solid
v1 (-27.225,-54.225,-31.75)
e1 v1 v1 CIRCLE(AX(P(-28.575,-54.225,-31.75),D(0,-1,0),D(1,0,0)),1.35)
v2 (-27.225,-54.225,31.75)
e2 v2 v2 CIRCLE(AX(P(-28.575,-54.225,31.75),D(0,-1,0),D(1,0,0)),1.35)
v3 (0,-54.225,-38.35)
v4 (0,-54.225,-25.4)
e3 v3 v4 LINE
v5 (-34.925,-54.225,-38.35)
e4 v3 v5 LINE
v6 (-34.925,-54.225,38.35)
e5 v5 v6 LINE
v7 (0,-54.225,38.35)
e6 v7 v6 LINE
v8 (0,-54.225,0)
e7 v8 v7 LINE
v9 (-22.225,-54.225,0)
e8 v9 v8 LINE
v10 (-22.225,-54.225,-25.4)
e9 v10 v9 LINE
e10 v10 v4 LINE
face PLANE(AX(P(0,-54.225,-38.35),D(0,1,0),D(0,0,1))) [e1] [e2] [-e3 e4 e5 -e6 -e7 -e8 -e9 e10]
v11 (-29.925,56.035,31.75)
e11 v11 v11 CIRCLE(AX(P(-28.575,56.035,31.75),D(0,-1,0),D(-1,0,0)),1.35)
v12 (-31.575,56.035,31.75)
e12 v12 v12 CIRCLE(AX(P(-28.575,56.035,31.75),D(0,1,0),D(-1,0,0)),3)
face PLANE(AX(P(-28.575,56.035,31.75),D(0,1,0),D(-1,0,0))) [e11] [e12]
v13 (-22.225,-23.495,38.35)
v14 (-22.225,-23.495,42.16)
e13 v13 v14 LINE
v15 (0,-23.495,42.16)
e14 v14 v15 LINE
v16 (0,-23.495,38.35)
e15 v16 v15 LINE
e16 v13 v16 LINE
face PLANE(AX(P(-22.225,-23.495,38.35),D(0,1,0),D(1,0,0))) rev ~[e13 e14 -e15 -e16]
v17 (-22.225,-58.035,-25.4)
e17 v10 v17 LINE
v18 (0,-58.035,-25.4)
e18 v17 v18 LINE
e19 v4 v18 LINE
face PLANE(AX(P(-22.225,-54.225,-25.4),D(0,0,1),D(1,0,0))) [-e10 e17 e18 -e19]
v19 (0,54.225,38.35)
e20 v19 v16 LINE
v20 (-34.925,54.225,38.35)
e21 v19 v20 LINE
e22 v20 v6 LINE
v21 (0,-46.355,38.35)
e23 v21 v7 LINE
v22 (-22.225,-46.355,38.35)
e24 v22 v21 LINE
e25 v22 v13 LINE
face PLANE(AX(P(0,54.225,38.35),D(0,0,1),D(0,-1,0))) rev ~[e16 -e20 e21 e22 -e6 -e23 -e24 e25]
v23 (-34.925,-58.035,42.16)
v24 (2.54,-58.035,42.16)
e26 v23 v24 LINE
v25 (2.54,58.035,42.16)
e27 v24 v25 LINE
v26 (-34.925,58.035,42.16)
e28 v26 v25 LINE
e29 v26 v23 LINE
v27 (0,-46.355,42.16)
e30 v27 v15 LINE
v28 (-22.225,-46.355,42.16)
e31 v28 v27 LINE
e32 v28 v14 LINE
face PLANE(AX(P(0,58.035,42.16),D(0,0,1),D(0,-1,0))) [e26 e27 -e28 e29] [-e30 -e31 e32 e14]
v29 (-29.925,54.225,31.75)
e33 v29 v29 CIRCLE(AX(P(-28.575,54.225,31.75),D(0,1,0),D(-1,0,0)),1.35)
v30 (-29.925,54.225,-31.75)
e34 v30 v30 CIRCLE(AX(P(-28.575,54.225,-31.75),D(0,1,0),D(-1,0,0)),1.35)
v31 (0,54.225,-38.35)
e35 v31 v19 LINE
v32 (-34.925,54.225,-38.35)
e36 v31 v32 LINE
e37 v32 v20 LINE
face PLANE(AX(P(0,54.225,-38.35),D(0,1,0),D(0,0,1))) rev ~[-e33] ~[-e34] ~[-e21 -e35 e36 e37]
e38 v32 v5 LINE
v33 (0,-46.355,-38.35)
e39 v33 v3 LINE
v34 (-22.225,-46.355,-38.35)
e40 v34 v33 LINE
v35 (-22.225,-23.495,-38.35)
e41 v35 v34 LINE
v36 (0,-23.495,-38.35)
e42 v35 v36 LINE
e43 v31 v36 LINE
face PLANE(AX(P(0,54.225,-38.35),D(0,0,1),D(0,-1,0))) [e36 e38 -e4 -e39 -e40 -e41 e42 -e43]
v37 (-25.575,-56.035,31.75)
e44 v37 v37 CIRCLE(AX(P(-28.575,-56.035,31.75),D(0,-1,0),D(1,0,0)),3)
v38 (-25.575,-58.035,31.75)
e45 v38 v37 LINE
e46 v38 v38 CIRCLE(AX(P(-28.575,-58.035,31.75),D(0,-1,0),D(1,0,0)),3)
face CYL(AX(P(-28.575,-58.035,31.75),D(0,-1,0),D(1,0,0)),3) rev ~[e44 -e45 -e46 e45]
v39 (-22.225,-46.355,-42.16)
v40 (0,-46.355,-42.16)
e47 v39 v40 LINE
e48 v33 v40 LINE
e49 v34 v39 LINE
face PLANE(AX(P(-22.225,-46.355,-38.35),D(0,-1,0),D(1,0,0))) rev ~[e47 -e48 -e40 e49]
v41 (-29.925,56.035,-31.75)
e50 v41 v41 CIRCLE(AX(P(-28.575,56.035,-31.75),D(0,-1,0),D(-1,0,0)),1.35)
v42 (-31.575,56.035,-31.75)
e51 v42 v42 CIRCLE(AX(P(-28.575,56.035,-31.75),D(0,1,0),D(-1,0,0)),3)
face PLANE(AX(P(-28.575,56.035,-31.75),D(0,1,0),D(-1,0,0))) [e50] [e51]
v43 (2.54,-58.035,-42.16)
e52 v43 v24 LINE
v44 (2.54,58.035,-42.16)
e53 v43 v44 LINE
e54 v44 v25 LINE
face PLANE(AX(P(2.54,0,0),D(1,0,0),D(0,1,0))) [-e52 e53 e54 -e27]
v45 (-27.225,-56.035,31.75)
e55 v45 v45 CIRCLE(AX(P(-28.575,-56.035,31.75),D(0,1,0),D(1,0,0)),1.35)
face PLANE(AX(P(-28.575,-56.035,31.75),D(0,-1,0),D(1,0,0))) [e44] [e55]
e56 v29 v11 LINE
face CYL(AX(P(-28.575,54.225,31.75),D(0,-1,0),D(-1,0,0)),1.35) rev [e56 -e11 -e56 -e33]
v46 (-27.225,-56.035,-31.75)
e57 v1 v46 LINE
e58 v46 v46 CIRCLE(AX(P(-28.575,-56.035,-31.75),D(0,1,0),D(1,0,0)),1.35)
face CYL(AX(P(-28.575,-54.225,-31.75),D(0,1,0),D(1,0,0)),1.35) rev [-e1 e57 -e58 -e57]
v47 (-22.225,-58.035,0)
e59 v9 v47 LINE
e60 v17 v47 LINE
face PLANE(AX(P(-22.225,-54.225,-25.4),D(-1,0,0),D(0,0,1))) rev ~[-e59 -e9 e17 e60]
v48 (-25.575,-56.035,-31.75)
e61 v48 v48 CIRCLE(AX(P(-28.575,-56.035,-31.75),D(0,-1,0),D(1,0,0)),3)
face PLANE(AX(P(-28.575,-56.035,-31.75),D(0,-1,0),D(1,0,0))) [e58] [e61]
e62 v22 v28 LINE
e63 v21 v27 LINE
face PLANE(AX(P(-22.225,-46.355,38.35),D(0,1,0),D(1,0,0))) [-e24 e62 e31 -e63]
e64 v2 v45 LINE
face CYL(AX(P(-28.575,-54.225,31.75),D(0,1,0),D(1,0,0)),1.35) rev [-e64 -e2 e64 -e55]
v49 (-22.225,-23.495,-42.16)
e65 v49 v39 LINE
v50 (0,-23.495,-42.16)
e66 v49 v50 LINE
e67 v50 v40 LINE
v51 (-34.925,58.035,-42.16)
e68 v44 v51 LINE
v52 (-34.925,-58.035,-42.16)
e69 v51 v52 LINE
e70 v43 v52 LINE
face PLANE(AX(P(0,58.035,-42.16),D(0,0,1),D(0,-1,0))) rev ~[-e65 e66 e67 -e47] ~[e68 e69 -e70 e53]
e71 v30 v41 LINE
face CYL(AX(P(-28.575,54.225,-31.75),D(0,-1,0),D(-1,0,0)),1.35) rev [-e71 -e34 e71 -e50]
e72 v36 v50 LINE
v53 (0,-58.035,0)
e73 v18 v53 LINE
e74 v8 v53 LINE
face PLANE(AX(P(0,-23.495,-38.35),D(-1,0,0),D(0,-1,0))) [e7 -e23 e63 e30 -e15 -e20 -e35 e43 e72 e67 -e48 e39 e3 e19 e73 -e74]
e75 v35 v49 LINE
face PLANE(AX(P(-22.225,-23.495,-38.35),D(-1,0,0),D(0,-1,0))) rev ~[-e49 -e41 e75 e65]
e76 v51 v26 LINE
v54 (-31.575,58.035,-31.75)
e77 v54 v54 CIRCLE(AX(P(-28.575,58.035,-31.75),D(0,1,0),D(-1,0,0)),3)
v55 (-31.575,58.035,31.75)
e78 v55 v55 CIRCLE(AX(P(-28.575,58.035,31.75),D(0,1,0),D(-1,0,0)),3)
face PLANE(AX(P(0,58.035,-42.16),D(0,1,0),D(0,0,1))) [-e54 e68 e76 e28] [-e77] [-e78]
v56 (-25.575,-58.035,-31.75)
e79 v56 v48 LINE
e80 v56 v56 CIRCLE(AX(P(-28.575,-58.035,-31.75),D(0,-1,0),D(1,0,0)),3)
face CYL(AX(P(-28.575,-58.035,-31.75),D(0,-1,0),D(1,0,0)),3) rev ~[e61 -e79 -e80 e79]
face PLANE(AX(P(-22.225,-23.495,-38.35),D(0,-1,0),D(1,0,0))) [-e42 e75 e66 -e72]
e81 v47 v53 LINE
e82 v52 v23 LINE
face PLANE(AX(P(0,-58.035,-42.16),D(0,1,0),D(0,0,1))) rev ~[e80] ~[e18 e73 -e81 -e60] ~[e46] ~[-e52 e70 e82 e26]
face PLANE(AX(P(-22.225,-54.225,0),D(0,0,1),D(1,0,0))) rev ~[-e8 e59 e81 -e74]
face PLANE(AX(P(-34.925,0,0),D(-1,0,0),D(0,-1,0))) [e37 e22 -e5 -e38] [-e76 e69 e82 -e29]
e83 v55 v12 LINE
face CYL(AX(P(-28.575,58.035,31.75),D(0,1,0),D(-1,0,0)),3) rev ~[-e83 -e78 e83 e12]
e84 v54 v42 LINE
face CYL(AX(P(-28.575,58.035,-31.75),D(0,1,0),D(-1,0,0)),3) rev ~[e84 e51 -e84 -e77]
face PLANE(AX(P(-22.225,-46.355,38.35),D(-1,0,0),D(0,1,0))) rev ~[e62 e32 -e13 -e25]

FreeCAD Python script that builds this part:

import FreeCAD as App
import Part
import Sketcher
Q = App.Units.Quantity


def add_polygon(sketch, points):
    """Adds a closed chain of lines whose ends are joined by coincident constraints."""
    first, n = sketch.GeometryCount, len(points)
    for a, b in zip(points, points[1:] + points[:1]):
        sketch.addGeometry(Part.LineSegment(App.Vector(*a, 0), App.Vector(*b, 0)), False)
    for i in range(n):
        sketch.addConstraint(Sketcher.Constraint("Coincident", first + i, 2, first + (i + 1) % n, 1))

doc = App.newDocument("Part")
body = doc.addObject("PartDesign::Body", "Body")

sketch1 = body.newObject("Sketcher::SketchObject", "Sketch")
sketch1.AttachmentSupport = (doc.getObject("YZ_Plane"), [""])
sketch1.MapMode = "FlatFace"
add_polygon(sketch1, [(-58.035, 42.16), (-58.035, -42.16), (58.035, -42.16), (58.035, 42.16)])
sketch1.addConstraint([
    Sketcher.Constraint("Vertical", 0),
    Sketcher.Constraint("Horizontal", 1),
    Sketcher.Constraint("Vertical", 2),
    Sketcher.Constraint("Horizontal", 3),
    Sketcher.Constraint("Symmetric", 0, 2, 2, 2, -1, 1),
    Sketcher.Constraint("DistanceX", 1, 1, 1, 2, 116.07),
    Sketcher.Constraint("DistanceY", 0, 2, 0, 1, 84.32),
])
pad1 = body.newObject("PartDesign::Pad", "Pad")
pad1.Profile = sketch1
pad1.Length = Q("0.1 in")

sketch2 = body.newObject("Sketcher::SketchObject", "Sketch001")
sketch2.AttachmentSupport = (doc.getObject("YZ_Plane"), [""])
sketch2.MapMode = "FlatFace"
add_polygon(sketch2, [(58.035, 42.16), (58.035, -42.16), (-58.035, -42.16), (-58.035, 42.16)])
add_polygon(sketch2, [(-54.225, -38.35), (54.225, -38.35), (54.225, 38.35), (-54.225, 38.35)])
sketch2.addConstraint([
    Sketcher.Constraint("Vertical", 0),
    Sketcher.Constraint("Horizontal", 1),
    Sketcher.Constraint("Vertical", 2),
    Sketcher.Constraint("Horizontal", 3),
    Sketcher.Constraint("Horizontal", 4),
    Sketcher.Constraint("Vertical", 5),
    Sketcher.Constraint("Horizontal", 6),
    Sketcher.Constraint("Vertical", 7),
    Sketcher.Constraint("Symmetric", 0, 2, 2, 2, -1, 1),
    Sketcher.Constraint("Symmetric", 4, 2, 6, 2, -1, 1),
    Sketcher.Constraint("DistanceX", 4, 2, 0, 2, Q("0.15 in")),
    Sketcher.Constraint("DistanceY", 0, 2, 4, 2, Q("0.15 in")),
    Sketcher.Constraint("DistanceX", 1, 2, 1, 1, 116.07),
    Sketcher.Constraint("DistanceY", 0, 2, 0, 1, 84.32),
])
pad2 = body.newObject("PartDesign::Pad", "Pad001")
pad2.Profile = sketch2
pad2.Length = Q("1.375 in")
pad2.Reversed = True

sketch3 = body.newObject("Sketcher::SketchObject", "Sketch002")
sketch3.AttachmentSupport = (doc.getObject("XZ_Plane"), [""])
sketch3.MapMode = "FlatFace"
sketch3.AttachmentOffset = App.Placement(App.Vector(0, 0, 54.225), App.Rotation())
sketch3.addGeometry([
    Part.Circle(App.Vector(-28.575, 31.75, 0), App.Vector(0, 0, 1), 1.35),
    Part.Circle(App.Vector(-28.575, -31.75, 0), App.Vector(0, 0, 1), 1.35),
], False)
sketch3.addConstraint([
    Sketcher.Constraint("Equal", 0, 1),
    Sketcher.Constraint("Symmetric", 0, 3, 1, 3, -1),
    Sketcher.Constraint("DistanceY", 1, 3, 0, 3, Q("2.5 in")),
    Sketcher.Constraint("Diameter", 0, 2.7),
    Sketcher.Constraint("DistanceX", 0, 3, -1, 1, Q("1.125 in")),
])
pocket1 = body.newObject("PartDesign::Pocket", "Pocket")
pocket1.Profile = sketch3
pocket1.Length = Q("0.15 in")
pocket1.Reversed = True

sketch4 = body.newObject("Sketcher::SketchObject", "Sketch003")
sketch4.AttachmentSupport = (doc.getObject("XZ_Plane"), [""])
sketch4.MapMode = "FlatFace"
sketch4.AttachmentOffset = App.Placement(App.Vector(0, 0, -54.225), App.Rotation())
sketch4.addGeometry([
    Part.Circle(App.Vector(-28.575, -31.75, 0), App.Vector(0, 0, 1), 1.35),
    Part.Circle(App.Vector(-28.575, 31.75, 0), App.Vector(0, 0, 1), 1.35),
], False)
sketch4.addConstraint([
    Sketcher.Constraint("Equal", 0, 1),
    Sketcher.Constraint("Symmetric", 0, 3, 1, 3, -1),
    Sketcher.Constraint("DistanceY", 0, 3, 1, 3, Q("2.5 in")),
    Sketcher.Constraint("Diameter", 0, 2.7),
    Sketcher.Constraint("DistanceX", 0, 3, -1, 1, Q("1.125 in")),
])
pocket2 = body.newObject("PartDesign::Pocket", "Pocket001")
pocket2.Profile = sketch4
pocket2.Length = Q("0.15 in")

sketch5 = body.newObject("Sketcher::SketchObject", "Sketch004")
sketch5.AttachmentSupport = (doc.getObject("XZ_Plane"), [""])
sketch5.MapMode = "FlatFace"
sketch5.AttachmentOffset = App.Placement(App.Vector(0, 0, -58.035), App.Rotation())
sketch5.addGeometry([
    Part.Circle(App.Vector(-28.575, -31.75, 0), App.Vector(0, 0, 1), 3),
    Part.Circle(App.Vector(-28.575, 31.75, 0), App.Vector(0, 0, 1), 3),
], False)
sketch5.addConstraint([
    Sketcher.Constraint("Equal", 0, 1),
    Sketcher.Constraint("Symmetric", 0, 3, 1, 3, -1),
    Sketcher.Constraint("DistanceY", 0, 3, 1, 3, Q("2.5 in")),
    Sketcher.Constraint("Diameter", 0, 6.0),
    Sketcher.Constraint("DistanceX", 0, 3, -1, 1, Q("1.125 in")),
])
pocket3 = body.newObject("PartDesign::Pocket", "Pocket002")
pocket3.Profile = sketch5
pocket3.Length = 2
pocket3.Reversed = True

sketch6 = body.newObject("Sketcher::SketchObject", "Sketch005")
sketch6.AttachmentSupport = (doc.getObject("XZ_Plane"), [""])
sketch6.MapMode = "FlatFace"
sketch6.AttachmentOffset = App.Placement(App.Vector(0, 0, 58.035), App.Rotation())
sketch6.addGeometry([
    Part.Circle(App.Vector(-28.575, 31.75, 0), App.Vector(0, 0, 1), 3),
    Part.Circle(App.Vector(-28.575, -31.75, 0), App.Vector(0, 0, 1), 3),
], False)
sketch6.addConstraint([
    Sketcher.Constraint("Equal", 0, 1),
    Sketcher.Constraint("Symmetric", 0, 3, 1, 3, -1),
    Sketcher.Constraint("DistanceY", 1, 3, 0, 3, Q("2.5 in")),
    Sketcher.Constraint("Diameter", 0, 6.0),
    Sketcher.Constraint("DistanceX", 0, 3, -1, 1, Q("1.125 in")),
])
pocket4 = body.newObject("PartDesign::Pocket", "Pocket003")
pocket4.Profile = sketch6
pocket4.Length = 2

sketch7 = body.newObject("Sketcher::SketchObject", "Sketch006")
sketch7.AttachmentSupport = (doc.getObject("XY_Plane"), [""])
sketch7.MapMode = "FlatFace"
sketch7.AttachmentOffset = App.Placement(App.Vector(0, 0, -38.35), App.Rotation())
add_polygon(sketch7, [(-22.225, -46.355), (-22.225, -23.495), (0, -23.495), (0, -46.355)])
sketch7.addConstraint([
    Sketcher.Constraint("Vertical", 0),
    Sketcher.Constraint("Horizontal", 1),
    Sketcher.Constraint("Vertical", 2),
    Sketcher.Constraint("Horizontal", 3),
    Sketcher.Constraint("PointOnObject", 1, 2, -2),
    Sketcher.Constraint("DistanceY", 0, 1, 0, 2, Q("0.9 in")),
    Sketcher.Constraint("DistanceX", 1, 1, 1, 2, Q("0.875 in")),
    Sketcher.Constraint("DistanceY", 0, 2, -1, 1, Q("0.925 in")),
])
pocket5 = body.newObject("PartDesign::Pocket", "Pocket004")
pocket5.Profile = sketch7
pocket5.Length = Q("0.15 in")

sketch8 = body.newObject("Sketcher::SketchObject", "Sketch007")
sketch8.AttachmentSupport = (doc.getObject("XZ_Plane"), [""])
sketch8.MapMode = "FlatFace"
sketch8.AttachmentOffset = App.Placement(App.Vector(0, 0, 54.225), App.Rotation())
add_polygon(sketch8, [(-22.225, 0), (-22.225, -25.4), (0, -25.4), (0, 0)])
sketch8.addConstraint([
    Sketcher.Constraint("Vertical", 0),
    Sketcher.Constraint("Horizontal", 1),
    Sketcher.Constraint("Vertical", 2),
    Sketcher.Constraint("Horizontal", 3),
    Sketcher.Constraint("Coincident", 2, 2, -1, 1),
    Sketcher.Constraint("DistanceY", 0, 2, 0, 1, Q("1 in")),
    Sketcher.Constraint("DistanceX", 1, 1, 1, 2, Q("0.875 in")),
])
pocket6 = body.newObject("PartDesign::Pocket", "Pocket005")
pocket6.Profile = sketch8
pocket6.Length = Q("0.15 in")
pocket6.Reversed = True

sketch9 = body.newObject("Sketcher::SketchObject", "Sketch008")
sketch9.AttachmentSupport = (doc.getObject("XY_Plane"), [""])
sketch9.MapMode = "FlatFace"
sketch9.AttachmentOffset = App.Placement(App.Vector(0, 0, 38.35), App.Rotation())
add_polygon(sketch9, [(-22.225, -23.495), (-22.225, -46.355), (0, -46.355), (0, -23.495)])
sketch9.addConstraint([
    Sketcher.Constraint("Vertical", 0),
    Sketcher.Constraint("Horizontal", 1),
    Sketcher.Constraint("Vertical", 2),
    Sketcher.Constraint("Horizontal", 3),
    Sketcher.Constraint("PointOnObject", 1, 2, -2),
    Sketcher.Constraint("DistanceY", 0, 2, 0, 1, Q("0.9 in")),
    Sketcher.Constraint("DistanceX", 1, 1, 1, 2, Q("0.875 in")),
    Sketcher.Constraint("DistanceY", 0, 2, -1, 1, Q("1.825 in")),
])
pocket7 = body.newObject("PartDesign::Pocket", "Pocket006")
pocket7.Profile = sketch9
pocket7.Length = Q("0.15 in")
pocket7.Reversed = True

doc.recompute()
